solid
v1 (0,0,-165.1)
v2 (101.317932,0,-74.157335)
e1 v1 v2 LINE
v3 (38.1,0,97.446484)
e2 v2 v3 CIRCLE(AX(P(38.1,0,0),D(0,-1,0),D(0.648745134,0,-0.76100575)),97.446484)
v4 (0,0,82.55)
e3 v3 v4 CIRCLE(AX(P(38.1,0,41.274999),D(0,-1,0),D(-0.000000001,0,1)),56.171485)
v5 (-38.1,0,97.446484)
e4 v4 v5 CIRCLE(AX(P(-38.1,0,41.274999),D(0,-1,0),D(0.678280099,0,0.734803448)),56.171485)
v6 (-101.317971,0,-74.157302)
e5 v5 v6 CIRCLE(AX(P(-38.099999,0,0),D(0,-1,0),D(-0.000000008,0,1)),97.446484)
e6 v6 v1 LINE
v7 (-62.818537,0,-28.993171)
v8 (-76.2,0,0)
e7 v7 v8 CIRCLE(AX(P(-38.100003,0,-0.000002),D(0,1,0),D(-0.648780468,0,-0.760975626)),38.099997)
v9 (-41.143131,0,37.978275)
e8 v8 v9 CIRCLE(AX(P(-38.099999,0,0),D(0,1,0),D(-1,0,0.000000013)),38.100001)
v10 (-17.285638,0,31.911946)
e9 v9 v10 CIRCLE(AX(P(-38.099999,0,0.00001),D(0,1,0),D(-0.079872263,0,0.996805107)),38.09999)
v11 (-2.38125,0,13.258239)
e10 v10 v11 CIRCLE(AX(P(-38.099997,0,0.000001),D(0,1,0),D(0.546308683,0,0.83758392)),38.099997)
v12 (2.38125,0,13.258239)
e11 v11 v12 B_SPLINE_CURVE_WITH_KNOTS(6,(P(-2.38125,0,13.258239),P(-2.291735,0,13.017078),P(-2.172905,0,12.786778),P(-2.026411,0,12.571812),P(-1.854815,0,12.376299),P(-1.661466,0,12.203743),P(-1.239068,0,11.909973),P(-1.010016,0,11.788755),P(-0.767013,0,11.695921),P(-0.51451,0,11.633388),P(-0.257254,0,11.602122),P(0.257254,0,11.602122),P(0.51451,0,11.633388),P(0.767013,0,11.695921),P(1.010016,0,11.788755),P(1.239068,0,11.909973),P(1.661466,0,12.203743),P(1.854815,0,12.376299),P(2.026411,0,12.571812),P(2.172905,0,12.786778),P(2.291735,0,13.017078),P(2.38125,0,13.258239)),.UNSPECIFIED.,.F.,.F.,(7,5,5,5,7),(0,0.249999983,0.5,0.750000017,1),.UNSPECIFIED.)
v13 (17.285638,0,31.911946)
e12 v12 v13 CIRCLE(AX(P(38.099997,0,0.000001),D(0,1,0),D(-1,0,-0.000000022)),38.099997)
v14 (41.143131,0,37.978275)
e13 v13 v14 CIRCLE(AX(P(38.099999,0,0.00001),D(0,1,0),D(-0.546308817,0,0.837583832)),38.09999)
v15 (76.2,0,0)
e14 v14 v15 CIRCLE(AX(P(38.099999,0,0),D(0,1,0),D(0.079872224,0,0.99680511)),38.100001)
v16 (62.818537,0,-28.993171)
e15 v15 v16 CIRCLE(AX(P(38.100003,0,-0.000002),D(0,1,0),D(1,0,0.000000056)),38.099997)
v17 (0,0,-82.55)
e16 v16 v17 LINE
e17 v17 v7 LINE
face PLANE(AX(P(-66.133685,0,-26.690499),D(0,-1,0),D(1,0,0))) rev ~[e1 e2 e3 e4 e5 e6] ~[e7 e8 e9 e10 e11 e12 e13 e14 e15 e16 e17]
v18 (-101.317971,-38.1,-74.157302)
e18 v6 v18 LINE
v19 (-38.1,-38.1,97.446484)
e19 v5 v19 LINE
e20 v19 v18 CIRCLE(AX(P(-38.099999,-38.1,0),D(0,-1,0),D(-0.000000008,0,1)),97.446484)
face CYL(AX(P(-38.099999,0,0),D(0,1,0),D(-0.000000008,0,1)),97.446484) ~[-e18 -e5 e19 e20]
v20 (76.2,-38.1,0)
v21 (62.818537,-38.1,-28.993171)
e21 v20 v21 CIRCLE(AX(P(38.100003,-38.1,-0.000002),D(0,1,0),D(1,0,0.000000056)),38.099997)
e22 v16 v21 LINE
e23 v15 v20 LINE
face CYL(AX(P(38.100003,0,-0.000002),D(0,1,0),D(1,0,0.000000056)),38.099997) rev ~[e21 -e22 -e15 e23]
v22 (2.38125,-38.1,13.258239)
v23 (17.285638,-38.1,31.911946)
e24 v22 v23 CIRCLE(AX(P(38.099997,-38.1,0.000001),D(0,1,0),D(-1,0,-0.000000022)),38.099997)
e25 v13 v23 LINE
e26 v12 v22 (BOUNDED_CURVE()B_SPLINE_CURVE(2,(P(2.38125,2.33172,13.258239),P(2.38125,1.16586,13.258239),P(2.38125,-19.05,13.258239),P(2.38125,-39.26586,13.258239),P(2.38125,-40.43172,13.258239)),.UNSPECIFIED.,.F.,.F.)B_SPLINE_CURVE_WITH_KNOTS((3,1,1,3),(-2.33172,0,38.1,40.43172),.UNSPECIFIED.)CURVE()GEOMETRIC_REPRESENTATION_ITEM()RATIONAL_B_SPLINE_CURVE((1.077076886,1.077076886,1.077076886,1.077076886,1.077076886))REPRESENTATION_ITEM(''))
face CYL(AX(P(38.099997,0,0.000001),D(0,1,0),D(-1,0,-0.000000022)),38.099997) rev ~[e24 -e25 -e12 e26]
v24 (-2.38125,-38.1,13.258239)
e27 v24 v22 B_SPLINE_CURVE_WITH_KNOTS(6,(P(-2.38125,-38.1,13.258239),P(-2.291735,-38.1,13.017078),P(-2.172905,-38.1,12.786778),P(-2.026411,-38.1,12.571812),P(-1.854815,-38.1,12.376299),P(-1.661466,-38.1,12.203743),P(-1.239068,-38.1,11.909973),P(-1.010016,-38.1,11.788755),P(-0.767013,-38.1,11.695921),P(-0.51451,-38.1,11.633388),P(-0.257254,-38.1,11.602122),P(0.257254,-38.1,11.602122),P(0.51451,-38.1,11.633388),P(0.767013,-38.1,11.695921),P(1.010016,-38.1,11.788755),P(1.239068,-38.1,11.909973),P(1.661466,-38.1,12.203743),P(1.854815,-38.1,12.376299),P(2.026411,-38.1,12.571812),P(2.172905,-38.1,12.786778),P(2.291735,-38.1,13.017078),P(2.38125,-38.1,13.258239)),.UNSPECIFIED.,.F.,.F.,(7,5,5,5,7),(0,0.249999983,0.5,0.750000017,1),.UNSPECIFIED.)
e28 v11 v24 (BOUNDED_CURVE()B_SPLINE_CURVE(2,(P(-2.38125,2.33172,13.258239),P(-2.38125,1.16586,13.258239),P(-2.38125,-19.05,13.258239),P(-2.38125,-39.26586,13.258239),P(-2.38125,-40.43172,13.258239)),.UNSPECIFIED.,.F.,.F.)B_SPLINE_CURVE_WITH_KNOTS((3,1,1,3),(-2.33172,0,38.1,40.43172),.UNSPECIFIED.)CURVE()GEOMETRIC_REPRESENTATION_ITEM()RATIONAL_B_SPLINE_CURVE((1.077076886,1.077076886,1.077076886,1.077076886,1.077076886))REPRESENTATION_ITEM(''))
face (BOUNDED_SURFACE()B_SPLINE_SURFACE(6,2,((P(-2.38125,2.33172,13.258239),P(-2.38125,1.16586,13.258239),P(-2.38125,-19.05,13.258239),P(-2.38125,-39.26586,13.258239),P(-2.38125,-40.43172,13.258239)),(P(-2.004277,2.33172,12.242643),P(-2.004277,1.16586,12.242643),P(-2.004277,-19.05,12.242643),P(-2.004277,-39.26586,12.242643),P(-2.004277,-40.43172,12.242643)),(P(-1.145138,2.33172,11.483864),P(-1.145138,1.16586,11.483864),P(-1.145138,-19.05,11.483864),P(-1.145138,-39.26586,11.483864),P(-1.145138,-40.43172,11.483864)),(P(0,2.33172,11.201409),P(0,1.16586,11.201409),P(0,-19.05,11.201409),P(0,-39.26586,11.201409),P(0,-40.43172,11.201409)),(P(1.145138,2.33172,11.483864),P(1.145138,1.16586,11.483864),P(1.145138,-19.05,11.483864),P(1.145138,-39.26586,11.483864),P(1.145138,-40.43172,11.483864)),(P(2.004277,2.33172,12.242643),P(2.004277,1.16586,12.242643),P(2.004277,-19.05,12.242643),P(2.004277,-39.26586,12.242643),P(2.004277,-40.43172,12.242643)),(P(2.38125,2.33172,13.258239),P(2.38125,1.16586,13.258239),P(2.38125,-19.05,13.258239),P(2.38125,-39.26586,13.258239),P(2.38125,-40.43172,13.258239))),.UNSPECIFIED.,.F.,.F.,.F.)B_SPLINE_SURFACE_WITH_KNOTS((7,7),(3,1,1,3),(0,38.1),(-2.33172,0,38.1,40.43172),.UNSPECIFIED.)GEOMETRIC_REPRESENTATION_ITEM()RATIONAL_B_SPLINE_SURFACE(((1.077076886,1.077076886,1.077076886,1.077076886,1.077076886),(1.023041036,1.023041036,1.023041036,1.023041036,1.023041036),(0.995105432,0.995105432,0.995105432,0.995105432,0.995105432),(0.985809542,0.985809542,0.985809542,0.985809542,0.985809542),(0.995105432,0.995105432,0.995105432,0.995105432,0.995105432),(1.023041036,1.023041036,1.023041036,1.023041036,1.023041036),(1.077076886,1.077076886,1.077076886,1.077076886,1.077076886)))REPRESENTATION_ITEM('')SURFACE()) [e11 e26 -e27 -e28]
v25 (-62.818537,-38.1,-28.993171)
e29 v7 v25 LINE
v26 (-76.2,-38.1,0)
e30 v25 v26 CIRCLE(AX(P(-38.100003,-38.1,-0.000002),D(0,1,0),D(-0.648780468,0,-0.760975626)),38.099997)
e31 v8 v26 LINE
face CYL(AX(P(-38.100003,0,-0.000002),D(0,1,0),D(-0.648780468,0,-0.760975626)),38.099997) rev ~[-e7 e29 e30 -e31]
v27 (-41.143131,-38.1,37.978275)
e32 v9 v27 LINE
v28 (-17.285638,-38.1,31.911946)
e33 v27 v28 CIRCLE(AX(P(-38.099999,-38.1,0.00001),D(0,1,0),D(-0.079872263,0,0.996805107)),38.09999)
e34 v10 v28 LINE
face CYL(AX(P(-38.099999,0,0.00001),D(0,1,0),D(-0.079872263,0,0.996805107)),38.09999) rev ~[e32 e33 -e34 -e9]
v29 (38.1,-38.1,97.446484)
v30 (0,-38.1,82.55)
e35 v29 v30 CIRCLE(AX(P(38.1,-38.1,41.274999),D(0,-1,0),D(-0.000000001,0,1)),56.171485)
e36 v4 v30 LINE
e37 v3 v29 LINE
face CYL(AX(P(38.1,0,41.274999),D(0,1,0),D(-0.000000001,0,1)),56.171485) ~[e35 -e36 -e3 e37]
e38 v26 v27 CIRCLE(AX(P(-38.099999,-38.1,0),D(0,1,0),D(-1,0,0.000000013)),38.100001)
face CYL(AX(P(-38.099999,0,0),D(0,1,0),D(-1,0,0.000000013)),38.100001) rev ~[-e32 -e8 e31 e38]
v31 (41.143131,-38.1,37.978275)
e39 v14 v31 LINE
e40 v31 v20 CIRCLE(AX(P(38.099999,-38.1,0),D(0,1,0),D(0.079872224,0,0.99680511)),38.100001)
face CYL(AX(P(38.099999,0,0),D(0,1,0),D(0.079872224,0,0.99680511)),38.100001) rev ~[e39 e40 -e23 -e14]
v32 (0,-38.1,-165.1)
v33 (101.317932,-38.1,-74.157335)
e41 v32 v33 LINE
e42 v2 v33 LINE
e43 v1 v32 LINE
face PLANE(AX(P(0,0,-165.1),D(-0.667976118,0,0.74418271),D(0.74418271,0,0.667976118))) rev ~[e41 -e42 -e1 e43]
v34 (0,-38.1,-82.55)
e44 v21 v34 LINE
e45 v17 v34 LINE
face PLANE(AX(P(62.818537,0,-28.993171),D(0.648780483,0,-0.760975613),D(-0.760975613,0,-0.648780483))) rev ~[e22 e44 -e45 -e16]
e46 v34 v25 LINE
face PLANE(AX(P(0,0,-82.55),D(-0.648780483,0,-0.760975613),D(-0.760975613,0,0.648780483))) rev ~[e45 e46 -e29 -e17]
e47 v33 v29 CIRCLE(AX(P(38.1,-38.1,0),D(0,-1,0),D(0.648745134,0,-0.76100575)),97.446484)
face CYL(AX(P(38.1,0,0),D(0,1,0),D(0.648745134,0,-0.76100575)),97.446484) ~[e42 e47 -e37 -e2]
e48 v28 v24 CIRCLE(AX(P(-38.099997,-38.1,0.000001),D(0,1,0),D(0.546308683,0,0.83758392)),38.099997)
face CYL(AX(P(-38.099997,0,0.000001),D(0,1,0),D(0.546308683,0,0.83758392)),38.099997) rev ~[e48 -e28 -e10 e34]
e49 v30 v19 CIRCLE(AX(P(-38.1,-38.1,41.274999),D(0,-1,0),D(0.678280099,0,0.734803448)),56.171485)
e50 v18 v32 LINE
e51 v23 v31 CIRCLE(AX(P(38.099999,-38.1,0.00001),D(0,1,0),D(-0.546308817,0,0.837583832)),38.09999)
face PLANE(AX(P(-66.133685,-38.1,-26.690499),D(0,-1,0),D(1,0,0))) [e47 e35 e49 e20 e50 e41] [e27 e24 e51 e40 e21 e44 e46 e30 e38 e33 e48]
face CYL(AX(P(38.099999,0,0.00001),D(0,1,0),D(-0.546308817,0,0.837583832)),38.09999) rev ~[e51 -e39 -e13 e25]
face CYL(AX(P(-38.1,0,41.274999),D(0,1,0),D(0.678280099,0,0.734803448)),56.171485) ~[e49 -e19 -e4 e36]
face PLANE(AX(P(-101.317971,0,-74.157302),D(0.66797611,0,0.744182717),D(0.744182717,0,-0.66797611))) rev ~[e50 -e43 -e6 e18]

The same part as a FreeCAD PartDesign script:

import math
import FreeCAD as App
import Part
import Sketcher
Q = App.Units.Quantity


def edges_at(feature, points):
    """Names of the edges that pass closest to the given points."""
    edges = feature.Shape.Edges
    near = lambda p: min(range(len(edges)), key=lambda i: edges[i].distToShape(Part.Vertex(*p))[0])
    return sorted({f"Edge{near(p) + 1}" for p in points})

doc = App.newDocument("Part")
params = doc.addObject("Spreadsheet::Sheet", "Params")
for row, (alias, value) in enumerate([
    ("sketch1_radius", "1.4999999 in"),
    ("sketch1_length", "3.25 in"),
    ("pad1_length", "1.5 in"),
    ("fillet_radius", "0.1 in"),
], start=1):
    params.set(f"A{row}", alias)
    params.set(f"B{row}", "=" + value)
    params.setAlias(f"B{row}", alias)

body = doc.addObject("PartDesign::Body", "Body")

sketch1 = doc.addObject("Sketcher::SketchObject", "Sketch")
body.addObject(sketch1)
sketch1.AttachmentSupport = (doc.XZ_Plane, [""])
sketch1.MapMode = "FlatFace"
sketch1.addGeometry([
    Part.ArcOfCircle(Part.Circle(App.Vector(-38.099999, 0, 0), App.Vector(0, 0, 1), 97.446484), math.radians(90), math.radians(229.552913)),
    Part.LineSegment(App.Vector(-101.317971, -74.157302, 0), App.Vector(0, -165.1, 0)),
    Part.LineSegment(App.Vector(0, -165.1, 0), App.Vector(101.317932, -74.157335, 0)),
    Part.ArcOfCircle(Part.Circle(App.Vector(38.1, 0, 0), App.Vector(0, 0, 1), 97.446484), math.radians(-49.552943), math.radians(90)),
    Part.ArcOfCircle(Part.Circle(App.Vector(38.1, 41.274999, 0), App.Vector(0, 0, 1), 56.171485), math.radians(90), math.radians(132.70939)),
    Part.ArcOfCircle(Part.Circle(App.Vector(-38.1, 41.274999, 0), App.Vector(0, 0, 1), 56.171485), math.radians(47.29061), math.radians(90)),
    Part.LineSegment(App.Vector(0, -82.55, 0), App.Vector(-62.818537, -28.993171, 0)),
    Part.ArcOfCircle(Part.Circle(App.Vector(-38.100003, -0.000002, 0), App.Vector(0, 0, 1), 38.099997), math.radians(179.999997), math.radians(229.550283)),
    Part.ArcOfCircle(Part.Circle(App.Vector(-38.099999, 0, 0), App.Vector(0, 0, 1), 38.100001), math.radians(94.581221), math.radians(179.999999)),
    Part.ArcOfCircle(Part.Circle(App.Vector(-38.099999, 0.00001, 0), App.Vector(0, 0, 1), 38.09999), math.radians(56.885851), math.radians(94.581223)),
    Part.ArcOfCircle(Part.Circle(App.Vector(-38.099997, 0.000001, 0), App.Vector(0, 0, 1), 38.099997), math.radians(-0.000001), math.radians(56.88586)),
    Part.ArcOfCircle(Part.Circle(App.Vector(38.099997, 0.000001, 0), App.Vector(0, 0, 1), 38.099997), math.radians(123.11414), math.radians(180.000001)),
    Part.ArcOfCircle(Part.Circle(App.Vector(38.099999, 0.00001, 0), App.Vector(0, 0, 1), 38.09999), math.radians(85.418777), math.radians(123.114149)),
    Part.ArcOfCircle(Part.Circle(App.Vector(38.099999, 0, 0), App.Vector(0, 0, 1), 38.100001), math.radians(0.000001), math.radians(85.418779)),
    Part.ArcOfCircle(Part.Circle(App.Vector(38.100003, -0.000002, 0), App.Vector(0, 0, 1), 38.099997), math.radians(-49.550283), math.radians(0.000003)),
    Part.LineSegment(App.Vector(62.818537, -28.993171, 0), App.Vector(0, -82.55, 0)),
], False)
sketch1.addConstraint([
    Sketcher.Constraint("Coincident", 0, 2, 1, 1),
    Sketcher.Constraint("Coincident", 1, 2, 2, 1),
    Sketcher.Constraint("Coincident", 2, 2, 3, 1),
    Sketcher.Constraint("Tangent", 3, 2, 4, 1),
    Sketcher.Constraint("Coincident", 4, 2, 5, 1),
    Sketcher.Constraint("Tangent", 5, 2, 0, 1),
    Sketcher.Constraint("Tangent", 6, 2, 7, 2),
    Sketcher.Constraint("Tangent", 7, 1, 8, 2),
    Sketcher.Constraint("Tangent", 8, 1, 9, 2),
    Sketcher.Constraint("Tangent", 9, 1, 10, 2),
    Sketcher.Constraint("Tangent", 10, 1, 11, 2),
    Sketcher.Constraint("Tangent", 11, 1, 12, 2),
    Sketcher.Constraint("Tangent", 12, 1, 13, 2),
    Sketcher.Constraint("Tangent", 13, 1, 14, 2),
    Sketcher.Constraint("Tangent", 14, 1, 15, 1),
    Sketcher.Constraint("Coincident", 15, 2, 6, 1),
    Sketcher.Constraint("Coincident", 10, 1, -1, 1),
    Sketcher.Constraint("Coincident", 7, 3, 0, 3),
    Sketcher.Constraint("Coincident", 10, 3, 0, 3),
    Sketcher.Constraint("Coincident", 11, 3, 3, 3),
    Sketcher.Constraint("Coincident", 13, 3, 3, 3),
    Sketcher.Constraint("Equal", 0, 3),
    Sketcher.Constraint("Equal", 4, 5),
    Sketcher.Constraint("Equal", 7, 10),
    Sketcher.Constraint("Equal", 10, 11),
    Sketcher.Constraint("Equal", 11, 14),
    Sketcher.Constraint("Symmetric", 4, 2, 15, 2, -1, 1),
    Sketcher.Constraint("Symmetric", 4, 3, 5, 3, -2),
    Sketcher.Constraint("PointOnObject", 1, 2, -2),
    Sketcher.Constraint("PointOnObject", 7, 1, -1),
    Sketcher.Constraint("PointOnObject", 13, 1, -1),
    Sketcher.Constraint("Horizontal", 9, 1, 11, 1),
    Sketcher.Constraint("Horizontal", 8, 1, 12, 1),
    Sketcher.Constraint("Vertical", 3, 3, 4, 3),
    Sketcher.Constraint("Radius", 7, Q("1.4999999 in")),
    Sketcher.Constraint("DistanceY", 1, 2, -1, 1, Q("6.5 in")),
    Sketcher.Constraint("Distance", 6, Q("3.25 in")),
    Sketcher.Constraint("DistanceY", -1, 1, 4, 3, Q("1.625 in")),
    Sketcher.Constraint("DistanceY", 0, 2, -1, 1, 74.157302),
    Sketcher.Constraint("Distance", 2, 136.146582),
    Sketcher.Constraint("DistanceX", 8, 1, -1, 1, 41.143131),
    Sketcher.Constraint("DistanceX", -1, 1, 11, 1, 17.285638),
])
sketch1.setExpression("Constraints[34]", "Params.sketch1_radius")
sketch1.setExpression("Constraints[36]", "Params.sketch1_length")
pad1 = doc.addObject("PartDesign::Pad", "Pad")
body.addObject(pad1)
pad1.Profile = sketch1
pad1.setExpression("Length", "Params.pad1_length")
doc.recompute()

fillet = doc.addObject("PartDesign::Fillet", "Fillet")
body.addObject(fillet)
fillet.Base = (pad1, edges_at(pad1, [(0, -19.05, 0)]))
fillet.setExpression("Radius", "Params.fillet_radius")

doc.recompute()
